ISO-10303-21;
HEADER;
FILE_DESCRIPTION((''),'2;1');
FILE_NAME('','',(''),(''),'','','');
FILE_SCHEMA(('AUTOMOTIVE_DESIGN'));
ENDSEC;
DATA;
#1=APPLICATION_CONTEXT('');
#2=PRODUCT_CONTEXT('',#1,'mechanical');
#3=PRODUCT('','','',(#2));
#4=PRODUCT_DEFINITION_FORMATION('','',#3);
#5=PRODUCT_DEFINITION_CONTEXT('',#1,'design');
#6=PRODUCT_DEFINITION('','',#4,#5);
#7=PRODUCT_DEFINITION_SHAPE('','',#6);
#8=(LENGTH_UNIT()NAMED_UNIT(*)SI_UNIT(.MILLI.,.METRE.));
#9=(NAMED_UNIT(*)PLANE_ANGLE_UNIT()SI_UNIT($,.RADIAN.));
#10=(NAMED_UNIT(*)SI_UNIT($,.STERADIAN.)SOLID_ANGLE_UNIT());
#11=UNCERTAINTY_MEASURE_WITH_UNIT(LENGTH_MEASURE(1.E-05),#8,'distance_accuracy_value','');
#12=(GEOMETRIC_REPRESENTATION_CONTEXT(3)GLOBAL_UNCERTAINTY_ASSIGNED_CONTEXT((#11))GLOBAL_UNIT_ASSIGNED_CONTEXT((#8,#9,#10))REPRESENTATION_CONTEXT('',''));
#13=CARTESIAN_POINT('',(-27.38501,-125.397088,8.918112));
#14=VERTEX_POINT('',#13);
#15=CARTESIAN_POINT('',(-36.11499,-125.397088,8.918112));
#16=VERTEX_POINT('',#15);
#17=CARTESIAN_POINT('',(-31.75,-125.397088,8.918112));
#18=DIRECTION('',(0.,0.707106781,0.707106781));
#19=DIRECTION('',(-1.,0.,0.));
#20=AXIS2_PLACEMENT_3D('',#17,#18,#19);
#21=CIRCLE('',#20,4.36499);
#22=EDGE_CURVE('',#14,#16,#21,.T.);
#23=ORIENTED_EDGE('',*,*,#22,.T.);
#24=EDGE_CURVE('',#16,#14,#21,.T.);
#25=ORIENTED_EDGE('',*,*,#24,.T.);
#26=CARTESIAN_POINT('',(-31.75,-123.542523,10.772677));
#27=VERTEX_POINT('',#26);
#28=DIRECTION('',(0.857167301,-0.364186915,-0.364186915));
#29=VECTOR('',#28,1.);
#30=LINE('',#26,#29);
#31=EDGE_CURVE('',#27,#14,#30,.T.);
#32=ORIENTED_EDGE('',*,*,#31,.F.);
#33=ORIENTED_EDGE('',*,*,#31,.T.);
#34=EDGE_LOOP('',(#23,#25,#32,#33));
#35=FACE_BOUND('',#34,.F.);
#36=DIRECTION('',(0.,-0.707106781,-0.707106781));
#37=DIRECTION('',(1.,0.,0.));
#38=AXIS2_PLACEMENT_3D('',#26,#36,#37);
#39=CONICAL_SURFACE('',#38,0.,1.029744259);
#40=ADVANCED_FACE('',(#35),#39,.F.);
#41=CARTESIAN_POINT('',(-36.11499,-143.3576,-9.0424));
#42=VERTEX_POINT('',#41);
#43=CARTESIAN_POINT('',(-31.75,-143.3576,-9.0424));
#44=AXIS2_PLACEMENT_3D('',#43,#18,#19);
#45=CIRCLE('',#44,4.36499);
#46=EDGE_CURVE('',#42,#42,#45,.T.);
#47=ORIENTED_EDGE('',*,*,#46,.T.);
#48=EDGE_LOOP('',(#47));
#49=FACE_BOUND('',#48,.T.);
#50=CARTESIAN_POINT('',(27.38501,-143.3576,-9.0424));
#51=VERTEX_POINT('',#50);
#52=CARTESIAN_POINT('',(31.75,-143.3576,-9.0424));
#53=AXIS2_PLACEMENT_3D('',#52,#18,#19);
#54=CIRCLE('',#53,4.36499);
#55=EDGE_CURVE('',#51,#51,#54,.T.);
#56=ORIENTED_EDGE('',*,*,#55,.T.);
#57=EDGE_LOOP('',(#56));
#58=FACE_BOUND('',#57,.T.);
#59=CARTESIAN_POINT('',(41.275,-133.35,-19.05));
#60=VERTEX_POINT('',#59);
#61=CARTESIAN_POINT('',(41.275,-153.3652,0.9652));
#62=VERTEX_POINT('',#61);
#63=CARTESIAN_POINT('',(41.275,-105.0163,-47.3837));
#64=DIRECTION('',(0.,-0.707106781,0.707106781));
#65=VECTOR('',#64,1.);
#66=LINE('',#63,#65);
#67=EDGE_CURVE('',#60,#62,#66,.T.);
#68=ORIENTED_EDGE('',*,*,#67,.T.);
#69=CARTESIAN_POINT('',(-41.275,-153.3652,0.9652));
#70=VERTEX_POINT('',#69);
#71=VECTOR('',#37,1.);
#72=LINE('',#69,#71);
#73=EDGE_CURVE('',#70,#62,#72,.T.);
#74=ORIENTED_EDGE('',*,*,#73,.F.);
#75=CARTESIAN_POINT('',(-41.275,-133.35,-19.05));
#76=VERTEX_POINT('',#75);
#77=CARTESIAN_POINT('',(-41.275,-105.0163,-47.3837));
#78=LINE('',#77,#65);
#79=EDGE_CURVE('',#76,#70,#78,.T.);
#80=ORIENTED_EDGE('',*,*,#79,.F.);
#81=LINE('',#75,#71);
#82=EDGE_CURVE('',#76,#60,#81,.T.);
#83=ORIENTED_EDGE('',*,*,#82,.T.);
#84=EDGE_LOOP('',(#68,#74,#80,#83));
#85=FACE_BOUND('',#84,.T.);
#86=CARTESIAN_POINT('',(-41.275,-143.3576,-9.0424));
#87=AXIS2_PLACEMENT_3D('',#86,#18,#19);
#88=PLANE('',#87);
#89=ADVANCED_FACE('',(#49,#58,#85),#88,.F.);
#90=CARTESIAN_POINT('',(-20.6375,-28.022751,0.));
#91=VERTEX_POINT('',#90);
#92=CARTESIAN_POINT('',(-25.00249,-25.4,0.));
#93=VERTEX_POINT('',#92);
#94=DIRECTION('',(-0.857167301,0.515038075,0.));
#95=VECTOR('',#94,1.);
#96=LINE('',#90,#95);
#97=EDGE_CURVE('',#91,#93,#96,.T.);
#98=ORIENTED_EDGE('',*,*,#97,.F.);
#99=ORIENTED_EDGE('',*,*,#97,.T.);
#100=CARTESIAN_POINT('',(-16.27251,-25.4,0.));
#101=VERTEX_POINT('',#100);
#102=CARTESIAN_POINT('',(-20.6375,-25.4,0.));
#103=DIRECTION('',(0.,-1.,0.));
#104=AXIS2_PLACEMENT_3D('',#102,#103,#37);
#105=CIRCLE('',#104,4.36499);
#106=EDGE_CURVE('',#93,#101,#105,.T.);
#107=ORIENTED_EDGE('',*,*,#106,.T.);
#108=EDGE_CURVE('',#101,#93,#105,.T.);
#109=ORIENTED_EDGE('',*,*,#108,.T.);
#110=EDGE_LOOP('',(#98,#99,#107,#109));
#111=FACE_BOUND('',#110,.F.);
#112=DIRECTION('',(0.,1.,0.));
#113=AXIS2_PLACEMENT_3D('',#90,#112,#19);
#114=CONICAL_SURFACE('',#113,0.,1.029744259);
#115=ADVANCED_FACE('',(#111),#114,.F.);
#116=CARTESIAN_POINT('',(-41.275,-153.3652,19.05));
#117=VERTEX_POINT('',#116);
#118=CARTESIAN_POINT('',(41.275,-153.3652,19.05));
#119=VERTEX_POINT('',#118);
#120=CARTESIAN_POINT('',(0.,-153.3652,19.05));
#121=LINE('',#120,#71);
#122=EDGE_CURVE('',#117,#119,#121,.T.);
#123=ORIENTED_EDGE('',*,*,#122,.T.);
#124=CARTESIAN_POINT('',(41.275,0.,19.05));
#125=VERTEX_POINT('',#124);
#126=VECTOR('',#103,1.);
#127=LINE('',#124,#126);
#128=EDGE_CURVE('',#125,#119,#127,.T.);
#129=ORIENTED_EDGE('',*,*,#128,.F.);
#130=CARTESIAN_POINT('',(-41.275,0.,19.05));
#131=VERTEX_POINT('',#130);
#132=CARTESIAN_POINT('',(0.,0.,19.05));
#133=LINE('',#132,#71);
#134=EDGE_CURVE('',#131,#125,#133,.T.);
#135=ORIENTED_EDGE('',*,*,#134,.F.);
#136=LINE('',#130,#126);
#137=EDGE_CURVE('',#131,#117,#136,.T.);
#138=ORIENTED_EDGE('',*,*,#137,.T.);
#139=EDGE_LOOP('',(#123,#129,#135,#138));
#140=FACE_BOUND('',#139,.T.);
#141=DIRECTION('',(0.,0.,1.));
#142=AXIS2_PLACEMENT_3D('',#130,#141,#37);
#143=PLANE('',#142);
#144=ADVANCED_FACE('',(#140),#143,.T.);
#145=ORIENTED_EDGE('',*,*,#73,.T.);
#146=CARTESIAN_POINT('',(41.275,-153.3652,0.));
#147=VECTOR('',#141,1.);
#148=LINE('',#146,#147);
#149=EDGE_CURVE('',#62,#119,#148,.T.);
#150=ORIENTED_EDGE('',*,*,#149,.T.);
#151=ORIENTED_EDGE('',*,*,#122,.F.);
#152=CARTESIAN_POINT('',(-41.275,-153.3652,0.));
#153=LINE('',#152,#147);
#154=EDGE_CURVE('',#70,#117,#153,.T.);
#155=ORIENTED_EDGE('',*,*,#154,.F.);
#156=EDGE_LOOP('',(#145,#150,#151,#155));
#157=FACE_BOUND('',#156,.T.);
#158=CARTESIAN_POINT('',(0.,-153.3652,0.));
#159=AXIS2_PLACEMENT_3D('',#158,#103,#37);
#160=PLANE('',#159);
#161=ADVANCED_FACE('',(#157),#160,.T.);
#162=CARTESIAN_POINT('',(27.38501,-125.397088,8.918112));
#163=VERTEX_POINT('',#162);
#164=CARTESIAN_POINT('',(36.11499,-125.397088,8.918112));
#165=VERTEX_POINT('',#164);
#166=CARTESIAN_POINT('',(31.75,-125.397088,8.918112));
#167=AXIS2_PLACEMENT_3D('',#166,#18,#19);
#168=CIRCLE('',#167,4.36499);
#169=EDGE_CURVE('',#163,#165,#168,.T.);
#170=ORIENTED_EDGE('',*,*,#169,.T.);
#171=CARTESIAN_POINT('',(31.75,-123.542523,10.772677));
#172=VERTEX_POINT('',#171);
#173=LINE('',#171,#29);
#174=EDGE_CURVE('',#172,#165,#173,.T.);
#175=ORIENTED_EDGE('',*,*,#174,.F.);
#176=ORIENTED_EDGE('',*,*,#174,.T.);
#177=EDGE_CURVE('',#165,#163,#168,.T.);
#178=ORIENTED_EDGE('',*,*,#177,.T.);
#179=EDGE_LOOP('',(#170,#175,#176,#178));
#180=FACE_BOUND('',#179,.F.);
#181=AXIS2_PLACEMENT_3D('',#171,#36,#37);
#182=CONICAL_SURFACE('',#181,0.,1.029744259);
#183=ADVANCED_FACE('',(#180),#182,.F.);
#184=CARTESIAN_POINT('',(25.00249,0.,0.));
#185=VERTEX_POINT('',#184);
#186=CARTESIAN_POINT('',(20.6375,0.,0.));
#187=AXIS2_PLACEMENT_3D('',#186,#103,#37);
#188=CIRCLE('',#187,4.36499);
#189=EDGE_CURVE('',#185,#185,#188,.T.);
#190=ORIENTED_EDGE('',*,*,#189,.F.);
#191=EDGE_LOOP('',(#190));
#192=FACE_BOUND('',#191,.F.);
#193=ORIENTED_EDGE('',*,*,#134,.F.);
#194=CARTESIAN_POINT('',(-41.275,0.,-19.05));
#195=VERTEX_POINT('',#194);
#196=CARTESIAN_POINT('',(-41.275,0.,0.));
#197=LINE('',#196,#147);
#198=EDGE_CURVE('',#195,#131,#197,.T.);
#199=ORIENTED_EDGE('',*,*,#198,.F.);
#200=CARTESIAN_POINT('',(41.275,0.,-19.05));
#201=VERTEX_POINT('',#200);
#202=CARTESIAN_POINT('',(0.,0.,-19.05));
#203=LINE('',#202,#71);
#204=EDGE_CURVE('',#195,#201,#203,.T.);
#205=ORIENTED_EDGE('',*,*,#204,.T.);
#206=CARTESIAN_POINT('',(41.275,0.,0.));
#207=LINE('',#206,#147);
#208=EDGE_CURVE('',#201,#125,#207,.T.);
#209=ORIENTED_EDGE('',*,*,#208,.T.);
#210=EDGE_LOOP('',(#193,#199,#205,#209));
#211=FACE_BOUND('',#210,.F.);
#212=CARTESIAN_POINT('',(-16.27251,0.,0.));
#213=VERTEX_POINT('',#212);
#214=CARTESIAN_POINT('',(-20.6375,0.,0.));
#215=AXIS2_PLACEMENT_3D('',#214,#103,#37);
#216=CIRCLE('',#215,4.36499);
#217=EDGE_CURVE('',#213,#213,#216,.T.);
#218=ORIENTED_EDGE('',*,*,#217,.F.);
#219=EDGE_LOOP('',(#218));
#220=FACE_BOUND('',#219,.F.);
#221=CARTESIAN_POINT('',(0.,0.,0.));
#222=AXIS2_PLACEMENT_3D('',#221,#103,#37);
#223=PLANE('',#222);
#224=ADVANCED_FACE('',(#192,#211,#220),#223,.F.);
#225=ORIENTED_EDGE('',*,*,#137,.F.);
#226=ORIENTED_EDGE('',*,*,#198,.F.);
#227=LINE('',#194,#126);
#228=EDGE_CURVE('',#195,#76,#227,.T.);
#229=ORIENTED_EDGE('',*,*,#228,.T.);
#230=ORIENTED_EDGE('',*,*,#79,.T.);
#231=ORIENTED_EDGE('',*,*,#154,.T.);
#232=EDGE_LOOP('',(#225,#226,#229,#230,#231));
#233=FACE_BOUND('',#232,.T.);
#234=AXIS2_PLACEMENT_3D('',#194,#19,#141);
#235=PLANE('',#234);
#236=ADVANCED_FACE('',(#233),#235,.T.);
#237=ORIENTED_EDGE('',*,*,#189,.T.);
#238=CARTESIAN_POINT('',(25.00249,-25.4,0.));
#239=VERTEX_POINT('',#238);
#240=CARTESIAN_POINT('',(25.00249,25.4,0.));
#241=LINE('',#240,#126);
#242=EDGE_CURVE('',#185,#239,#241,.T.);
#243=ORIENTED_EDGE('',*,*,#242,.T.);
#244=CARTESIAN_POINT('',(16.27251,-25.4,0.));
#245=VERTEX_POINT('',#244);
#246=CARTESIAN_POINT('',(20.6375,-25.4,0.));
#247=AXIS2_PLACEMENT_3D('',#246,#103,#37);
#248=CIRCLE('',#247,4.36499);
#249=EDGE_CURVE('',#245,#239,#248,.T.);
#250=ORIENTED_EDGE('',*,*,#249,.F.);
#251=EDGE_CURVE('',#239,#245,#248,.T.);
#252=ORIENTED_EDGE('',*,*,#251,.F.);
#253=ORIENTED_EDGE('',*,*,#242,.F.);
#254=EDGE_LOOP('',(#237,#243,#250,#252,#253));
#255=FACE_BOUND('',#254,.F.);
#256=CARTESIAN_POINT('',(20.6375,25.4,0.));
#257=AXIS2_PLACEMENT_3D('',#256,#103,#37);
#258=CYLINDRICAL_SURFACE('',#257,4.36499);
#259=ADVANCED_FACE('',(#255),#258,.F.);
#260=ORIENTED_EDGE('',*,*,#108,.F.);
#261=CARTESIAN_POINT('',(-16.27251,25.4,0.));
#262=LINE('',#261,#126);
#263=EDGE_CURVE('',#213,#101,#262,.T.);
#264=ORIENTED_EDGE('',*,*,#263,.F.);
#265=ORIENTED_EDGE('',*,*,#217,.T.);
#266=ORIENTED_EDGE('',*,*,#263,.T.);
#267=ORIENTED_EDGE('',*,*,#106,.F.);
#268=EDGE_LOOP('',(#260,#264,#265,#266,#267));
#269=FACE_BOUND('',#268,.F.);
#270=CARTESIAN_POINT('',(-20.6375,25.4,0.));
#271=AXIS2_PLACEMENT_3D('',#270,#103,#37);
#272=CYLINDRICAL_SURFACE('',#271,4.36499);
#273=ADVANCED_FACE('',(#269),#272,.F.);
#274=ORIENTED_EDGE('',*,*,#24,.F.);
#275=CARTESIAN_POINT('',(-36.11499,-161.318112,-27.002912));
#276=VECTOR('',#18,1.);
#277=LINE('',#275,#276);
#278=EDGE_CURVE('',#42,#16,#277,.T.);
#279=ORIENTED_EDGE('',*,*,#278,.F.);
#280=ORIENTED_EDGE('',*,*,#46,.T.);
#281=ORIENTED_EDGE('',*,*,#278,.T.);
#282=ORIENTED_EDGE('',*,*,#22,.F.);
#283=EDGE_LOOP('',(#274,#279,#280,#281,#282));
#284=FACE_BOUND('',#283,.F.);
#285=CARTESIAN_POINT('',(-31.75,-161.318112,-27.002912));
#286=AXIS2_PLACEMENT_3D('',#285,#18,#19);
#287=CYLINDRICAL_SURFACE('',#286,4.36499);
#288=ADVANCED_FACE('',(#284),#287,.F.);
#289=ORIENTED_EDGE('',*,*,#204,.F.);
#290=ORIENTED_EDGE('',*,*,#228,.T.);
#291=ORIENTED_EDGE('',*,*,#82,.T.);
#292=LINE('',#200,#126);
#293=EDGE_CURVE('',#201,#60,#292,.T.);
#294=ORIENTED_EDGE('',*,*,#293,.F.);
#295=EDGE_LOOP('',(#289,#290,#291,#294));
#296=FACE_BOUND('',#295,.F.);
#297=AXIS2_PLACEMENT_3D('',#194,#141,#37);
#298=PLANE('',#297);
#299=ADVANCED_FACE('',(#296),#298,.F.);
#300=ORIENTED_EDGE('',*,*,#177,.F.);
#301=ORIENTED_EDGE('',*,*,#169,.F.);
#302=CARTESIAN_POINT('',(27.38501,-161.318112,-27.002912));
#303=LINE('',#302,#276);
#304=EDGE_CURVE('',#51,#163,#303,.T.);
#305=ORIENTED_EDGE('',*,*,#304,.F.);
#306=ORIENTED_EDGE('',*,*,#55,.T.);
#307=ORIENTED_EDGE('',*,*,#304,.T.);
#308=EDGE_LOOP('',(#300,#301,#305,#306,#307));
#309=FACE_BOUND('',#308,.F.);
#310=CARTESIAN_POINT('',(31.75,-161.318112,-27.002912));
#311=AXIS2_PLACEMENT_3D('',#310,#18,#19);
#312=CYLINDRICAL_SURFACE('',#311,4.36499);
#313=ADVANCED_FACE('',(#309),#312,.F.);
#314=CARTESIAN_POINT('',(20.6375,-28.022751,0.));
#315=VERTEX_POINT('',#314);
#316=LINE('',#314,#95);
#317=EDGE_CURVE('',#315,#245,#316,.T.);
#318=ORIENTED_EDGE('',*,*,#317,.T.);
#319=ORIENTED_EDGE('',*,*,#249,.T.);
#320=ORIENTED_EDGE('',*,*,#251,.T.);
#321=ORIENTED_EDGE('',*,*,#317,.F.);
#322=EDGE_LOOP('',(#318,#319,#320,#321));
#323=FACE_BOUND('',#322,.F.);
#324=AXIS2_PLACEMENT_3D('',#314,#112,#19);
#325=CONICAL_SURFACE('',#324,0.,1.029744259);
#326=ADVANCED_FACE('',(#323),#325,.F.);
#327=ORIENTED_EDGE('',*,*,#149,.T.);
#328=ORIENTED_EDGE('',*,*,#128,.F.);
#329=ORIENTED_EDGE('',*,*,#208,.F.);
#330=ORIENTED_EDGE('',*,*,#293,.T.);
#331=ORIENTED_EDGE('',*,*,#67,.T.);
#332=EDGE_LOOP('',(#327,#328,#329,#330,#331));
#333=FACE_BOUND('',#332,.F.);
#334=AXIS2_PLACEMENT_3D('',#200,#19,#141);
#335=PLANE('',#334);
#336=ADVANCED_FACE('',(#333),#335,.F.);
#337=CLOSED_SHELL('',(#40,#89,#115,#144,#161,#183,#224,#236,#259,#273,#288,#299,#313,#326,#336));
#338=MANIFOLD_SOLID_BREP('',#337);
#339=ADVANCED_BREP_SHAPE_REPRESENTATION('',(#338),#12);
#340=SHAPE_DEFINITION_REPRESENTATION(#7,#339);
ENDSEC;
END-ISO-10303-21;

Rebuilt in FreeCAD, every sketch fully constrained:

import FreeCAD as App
import Part
import Sketcher
from FreeCAD import Vector
Q = App.Units.Quantity


def edges_at(feature, points):
    """Names of the edges that pass closest to the given points."""
    edges = feature.Shape.Edges
    near = lambda p: min(range(len(edges)), key=lambda i: edges[i].distToShape(Part.Vertex(*p))[0])
    return sorted({f"Edge{near(p) + 1}" for p in points})


def add_polygon(sketch, points):
    """Adds a closed chain of lines whose ends are joined by coincident constraints."""
    first, n = sketch.GeometryCount, len(points)
    for a, b in zip(points, points[1:] + points[:1]):
        sketch.addGeometry(Part.LineSegment(App.Vector(*a, 0), App.Vector(*b, 0)), False)
    for i in range(n):
        sketch.addConstraint(Sketcher.Constraint("Coincident", first + i, 2, first + (i + 1) % n, 1))

doc = App.newDocument("Part")
body = doc.addObject("PartDesign::Body", "Body")

sketch1 = doc.addObject("Sketcher::SketchObject", "Sketch")
body.addObject(sketch1)
sketch1.AttachmentSupport = (doc.XZ_Plane, [""])
sketch1.MapMode = "FlatFace"
add_polygon(sketch1, [(-41, 19), (-41, -19), (41, -19), (41, 19)])
sketch1.addConstraint(Sketcher.Constraint("Vertical", 0))
sketch1.addConstraint(Sketcher.Constraint("Horizontal", 1))
sketch1.addConstraint(Sketcher.Constraint("Vertical", 2))
sketch1.addConstraint(Sketcher.Constraint("Horizontal", 3))
sketch1.addConstraint(Sketcher.Constraint("Symmetric", 0, 2, 2, 2, -1, 1))
sketch1.addConstraint(Sketcher.Constraint("DistanceY", 0, 2, 0, 1, Q("1.5 in")))
sketch1.addConstraint(Sketcher.Constraint("DistanceX", 1, 1, 1, 2, Q("3.25 in")))
pad1 = doc.addObject("PartDesign::Pad", "Pad")
body.addObject(pad1)
pad1.Profile = sketch1
pad1.Length = Q("6.038 in")
doc.recompute()

chamfer = doc.addObject("PartDesign::Chamfer", "Chamfer")
body.addObject(chamfer)
chamfer.Base = (pad1, edges_at(pad1, [(0, -153.365, -19.05)]))
chamfer.ChamferType = "Two distances"
chamfer.Size = Q("0.788 in")
chamfer.Size2 = Q("0.788 in")

sketch2 = doc.addObject("Sketcher::SketchObject", "Sketch001")
body.addObject(sketch2)
sketch2.Placement = App.Placement(Vector(0, -76.2, -76.2), App.Rotation(Vector(1, 0, 0), Vector(0, -0.707106781, 0.707106781), Vector(0, -0.707106781, -0.707106781), "ZXY"))
sketch2.addGeometry(Part.Circle(Vector(-31.8, 95, 0), Vector(0, 0, 1), 4.4), False)
sketch2.addGeometry(Part.Circle(Vector(31.8, 95, 0), Vector(0, 0, 1), 4.4), False)
sketch2.addConstraint(Sketcher.Constraint("Equal", 0, 1))
sketch2.addConstraint(Sketcher.Constraint("Symmetric", 0, 3, 1, 3, -2))
sketch2.addConstraint(Sketcher.Constraint("Diameter", 0, Q("0.3437 in")))
sketch2.addConstraint(Sketcher.Constraint("DistanceX", 0, 3, 1, 3, Q("2.5 in")))
sketch2.addConstraint(Sketcher.Constraint("DistanceY", -1, 1, 0, 3, 94.975189))
doc.recompute()
hole = doc.addObject("PartDesign::Hole", "Hole")
body.addObject(hole)
hole.Profile = sketch2
hole.ThreadType = "None"
hole.Diameter = Q("0.3437 in")
hole.DepthType = "Dimension"
hole.Depth = Q("1 in")
hole.DrillPoint = "Angled"
hole.DrillPointAngle = 118

sketch3 = doc.addObject("Sketcher::SketchObject", "Sketch002")
body.addObject(sketch3)
sketch3.AttachmentSupport = (doc.XZ_Plane, [""])
sketch3.MapMode = "FlatFace"
sketch3.addGeometry(Part.Circle(Vector(20.6, 0, 0), Vector(0, 0, 1), 4.4), False)
sketch3.addGeometry(Part.Circle(Vector(-20.6, 0, 0), Vector(0, 0, 1), 4.4), False)
sketch3.addConstraint(Sketcher.Constraint("Equal", 0, 1))
sketch3.addConstraint(Sketcher.Constraint("Symmetric", 0, 3, 1, 3, -1, 1))
sketch3.addConstraint(Sketcher.Constraint("PointOnObject", 0, 3, -1))
sketch3.addConstraint(Sketcher.Constraint("Diameter", 0, Q("0.3437 in")))
sketch3.addConstraint(Sketcher.Constraint("DistanceX", -1, 1, 0, 3, Q("0.8125 in")))
doc.recompute()
hole2 = doc.addObject("PartDesign::Hole", "Hole001")
body.addObject(hole2)
hole2.Profile = sketch3
hole2.ThreadType = "None"
hole2.Diameter = Q("0.3437 in")
hole2.DepthType = "Dimension"
hole2.Depth = Q("1 in")
hole2.DrillPoint = "Angled"
hole2.DrillPointAngle = 118
hole2.Reversed = True

doc.recompute()
